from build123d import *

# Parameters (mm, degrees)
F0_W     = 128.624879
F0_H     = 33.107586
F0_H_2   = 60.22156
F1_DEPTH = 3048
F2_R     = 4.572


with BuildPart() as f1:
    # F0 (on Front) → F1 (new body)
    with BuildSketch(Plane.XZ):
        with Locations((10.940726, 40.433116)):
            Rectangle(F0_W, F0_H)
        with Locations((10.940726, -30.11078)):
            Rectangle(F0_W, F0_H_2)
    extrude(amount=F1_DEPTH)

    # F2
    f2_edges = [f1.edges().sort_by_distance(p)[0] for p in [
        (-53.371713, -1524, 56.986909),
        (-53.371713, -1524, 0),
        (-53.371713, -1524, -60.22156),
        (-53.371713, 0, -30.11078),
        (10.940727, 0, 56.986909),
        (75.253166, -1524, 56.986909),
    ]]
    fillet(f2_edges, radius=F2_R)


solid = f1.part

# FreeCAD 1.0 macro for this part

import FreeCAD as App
import Part
import Sketcher
Q = App.Units.Quantity


def edges_at(feature, points):
    """Names of the edges that pass closest to the given points."""
    edges = feature.Shape.Edges
    near = lambda p: min(range(len(edges)), key=lambda i: edges[i].distToShape(Part.Vertex(*p))[0])
    return sorted({f"Edge{near(p) + 1}" for p in points})


def add_polygon(sketch, points):
    """Adds a closed chain of lines whose ends are joined by coincident constraints."""
    first, n = sketch.GeometryCount, len(points)
    for a, b in zip(points, points[1:] + points[:1]):
        sketch.addGeometry(Part.LineSegment(App.Vector(*a, 0), App.Vector(*b, 0)), False)
    for i in range(n):
        sketch.addConstraint(Sketcher.Constraint("Coincident", first + i, 2, first + (i + 1) % n, 1))

doc = App.newDocument("Part")
body = doc.addObject("PartDesign::Body", "Body")
body.AllowCompound = True

sketch1 = body.newObject("Sketcher::SketchObject", "Sketch")
sketch1.AttachmentSupport = (doc.getObject("XZ_Plane"), [""])
sketch1.MapMode = "FlatFace"
add_polygon(sketch1, [(-53, 57), (-53, 24), (75, 24), (75, 57)])
add_polygon(sketch1, [(-53, 0), (-53, -60), (75, -60), (75, 0)])
sketch1.addConstraint(Sketcher.Constraint("Vertical", 0))
sketch1.addConstraint(Sketcher.Constraint("Horizontal", 1))
sketch1.addConstraint(Sketcher.Constraint("Vertical", 2))
sketch1.addConstraint(Sketcher.Constraint("Horizontal", 3))
sketch1.addConstraint(Sketcher.Constraint("Vertical", 4))
sketch1.addConstraint(Sketcher.Constraint("Horizontal", 5))
sketch1.addConstraint(Sketcher.Constraint("Vertical", 6))
sketch1.addConstraint(Sketcher.Constraint("Horizontal", 7))
sketch1.addConstraint(Sketcher.Constraint("PointOnObject", 6, 2, -1))
sketch1.addConstraint(Sketcher.Constraint("Vertical", 3, 2, 4, 2))
sketch1.addConstraint(Sketcher.Constraint("Vertical", 2, 2, 5, 2))
sketch1.addConstraint(Sketcher.Constraint("DistanceX", 1, 1, 1, 2, Q("128.624879 mm")))
sketch1.addConstraint(Sketcher.Constraint("DistanceY", 4, 2, 4, 1, Q("60.22156 mm")))
sketch1.addConstraint(Sketcher.Constraint("DistanceY", 0, 2, 0, 1, Q("33.107586 mm")))
sketch1.addConstraint(Sketcher.Constraint("DistanceY", -1, 1, 2, 2, Q("56.986909 mm")))
sketch1.addConstraint(Sketcher.Constraint("DistanceX", 0, 2, -1, 1, Q("53.371713 mm")))
pad1 = body.newObject("PartDesign::Pad", "Pad")
pad1.Profile = sketch1
pad1.Length = Q("120 in")
doc.recompute()

fillet = body.newObject("PartDesign::Fillet", "Fillet")
fillet.Base = (pad1, edges_at(pad1, [
    (-53.372, -1524, 56.987),
    (-53.372, -1524, 0),
    (-53.372, -1524, -60.222),
    (-53.372, 0, -30.111),
    (10.941, 0, 56.987),
    (75.253, -1524, 56.987),
]))
fillet.Radius = Q("0.18 in")

doc.recompute()
